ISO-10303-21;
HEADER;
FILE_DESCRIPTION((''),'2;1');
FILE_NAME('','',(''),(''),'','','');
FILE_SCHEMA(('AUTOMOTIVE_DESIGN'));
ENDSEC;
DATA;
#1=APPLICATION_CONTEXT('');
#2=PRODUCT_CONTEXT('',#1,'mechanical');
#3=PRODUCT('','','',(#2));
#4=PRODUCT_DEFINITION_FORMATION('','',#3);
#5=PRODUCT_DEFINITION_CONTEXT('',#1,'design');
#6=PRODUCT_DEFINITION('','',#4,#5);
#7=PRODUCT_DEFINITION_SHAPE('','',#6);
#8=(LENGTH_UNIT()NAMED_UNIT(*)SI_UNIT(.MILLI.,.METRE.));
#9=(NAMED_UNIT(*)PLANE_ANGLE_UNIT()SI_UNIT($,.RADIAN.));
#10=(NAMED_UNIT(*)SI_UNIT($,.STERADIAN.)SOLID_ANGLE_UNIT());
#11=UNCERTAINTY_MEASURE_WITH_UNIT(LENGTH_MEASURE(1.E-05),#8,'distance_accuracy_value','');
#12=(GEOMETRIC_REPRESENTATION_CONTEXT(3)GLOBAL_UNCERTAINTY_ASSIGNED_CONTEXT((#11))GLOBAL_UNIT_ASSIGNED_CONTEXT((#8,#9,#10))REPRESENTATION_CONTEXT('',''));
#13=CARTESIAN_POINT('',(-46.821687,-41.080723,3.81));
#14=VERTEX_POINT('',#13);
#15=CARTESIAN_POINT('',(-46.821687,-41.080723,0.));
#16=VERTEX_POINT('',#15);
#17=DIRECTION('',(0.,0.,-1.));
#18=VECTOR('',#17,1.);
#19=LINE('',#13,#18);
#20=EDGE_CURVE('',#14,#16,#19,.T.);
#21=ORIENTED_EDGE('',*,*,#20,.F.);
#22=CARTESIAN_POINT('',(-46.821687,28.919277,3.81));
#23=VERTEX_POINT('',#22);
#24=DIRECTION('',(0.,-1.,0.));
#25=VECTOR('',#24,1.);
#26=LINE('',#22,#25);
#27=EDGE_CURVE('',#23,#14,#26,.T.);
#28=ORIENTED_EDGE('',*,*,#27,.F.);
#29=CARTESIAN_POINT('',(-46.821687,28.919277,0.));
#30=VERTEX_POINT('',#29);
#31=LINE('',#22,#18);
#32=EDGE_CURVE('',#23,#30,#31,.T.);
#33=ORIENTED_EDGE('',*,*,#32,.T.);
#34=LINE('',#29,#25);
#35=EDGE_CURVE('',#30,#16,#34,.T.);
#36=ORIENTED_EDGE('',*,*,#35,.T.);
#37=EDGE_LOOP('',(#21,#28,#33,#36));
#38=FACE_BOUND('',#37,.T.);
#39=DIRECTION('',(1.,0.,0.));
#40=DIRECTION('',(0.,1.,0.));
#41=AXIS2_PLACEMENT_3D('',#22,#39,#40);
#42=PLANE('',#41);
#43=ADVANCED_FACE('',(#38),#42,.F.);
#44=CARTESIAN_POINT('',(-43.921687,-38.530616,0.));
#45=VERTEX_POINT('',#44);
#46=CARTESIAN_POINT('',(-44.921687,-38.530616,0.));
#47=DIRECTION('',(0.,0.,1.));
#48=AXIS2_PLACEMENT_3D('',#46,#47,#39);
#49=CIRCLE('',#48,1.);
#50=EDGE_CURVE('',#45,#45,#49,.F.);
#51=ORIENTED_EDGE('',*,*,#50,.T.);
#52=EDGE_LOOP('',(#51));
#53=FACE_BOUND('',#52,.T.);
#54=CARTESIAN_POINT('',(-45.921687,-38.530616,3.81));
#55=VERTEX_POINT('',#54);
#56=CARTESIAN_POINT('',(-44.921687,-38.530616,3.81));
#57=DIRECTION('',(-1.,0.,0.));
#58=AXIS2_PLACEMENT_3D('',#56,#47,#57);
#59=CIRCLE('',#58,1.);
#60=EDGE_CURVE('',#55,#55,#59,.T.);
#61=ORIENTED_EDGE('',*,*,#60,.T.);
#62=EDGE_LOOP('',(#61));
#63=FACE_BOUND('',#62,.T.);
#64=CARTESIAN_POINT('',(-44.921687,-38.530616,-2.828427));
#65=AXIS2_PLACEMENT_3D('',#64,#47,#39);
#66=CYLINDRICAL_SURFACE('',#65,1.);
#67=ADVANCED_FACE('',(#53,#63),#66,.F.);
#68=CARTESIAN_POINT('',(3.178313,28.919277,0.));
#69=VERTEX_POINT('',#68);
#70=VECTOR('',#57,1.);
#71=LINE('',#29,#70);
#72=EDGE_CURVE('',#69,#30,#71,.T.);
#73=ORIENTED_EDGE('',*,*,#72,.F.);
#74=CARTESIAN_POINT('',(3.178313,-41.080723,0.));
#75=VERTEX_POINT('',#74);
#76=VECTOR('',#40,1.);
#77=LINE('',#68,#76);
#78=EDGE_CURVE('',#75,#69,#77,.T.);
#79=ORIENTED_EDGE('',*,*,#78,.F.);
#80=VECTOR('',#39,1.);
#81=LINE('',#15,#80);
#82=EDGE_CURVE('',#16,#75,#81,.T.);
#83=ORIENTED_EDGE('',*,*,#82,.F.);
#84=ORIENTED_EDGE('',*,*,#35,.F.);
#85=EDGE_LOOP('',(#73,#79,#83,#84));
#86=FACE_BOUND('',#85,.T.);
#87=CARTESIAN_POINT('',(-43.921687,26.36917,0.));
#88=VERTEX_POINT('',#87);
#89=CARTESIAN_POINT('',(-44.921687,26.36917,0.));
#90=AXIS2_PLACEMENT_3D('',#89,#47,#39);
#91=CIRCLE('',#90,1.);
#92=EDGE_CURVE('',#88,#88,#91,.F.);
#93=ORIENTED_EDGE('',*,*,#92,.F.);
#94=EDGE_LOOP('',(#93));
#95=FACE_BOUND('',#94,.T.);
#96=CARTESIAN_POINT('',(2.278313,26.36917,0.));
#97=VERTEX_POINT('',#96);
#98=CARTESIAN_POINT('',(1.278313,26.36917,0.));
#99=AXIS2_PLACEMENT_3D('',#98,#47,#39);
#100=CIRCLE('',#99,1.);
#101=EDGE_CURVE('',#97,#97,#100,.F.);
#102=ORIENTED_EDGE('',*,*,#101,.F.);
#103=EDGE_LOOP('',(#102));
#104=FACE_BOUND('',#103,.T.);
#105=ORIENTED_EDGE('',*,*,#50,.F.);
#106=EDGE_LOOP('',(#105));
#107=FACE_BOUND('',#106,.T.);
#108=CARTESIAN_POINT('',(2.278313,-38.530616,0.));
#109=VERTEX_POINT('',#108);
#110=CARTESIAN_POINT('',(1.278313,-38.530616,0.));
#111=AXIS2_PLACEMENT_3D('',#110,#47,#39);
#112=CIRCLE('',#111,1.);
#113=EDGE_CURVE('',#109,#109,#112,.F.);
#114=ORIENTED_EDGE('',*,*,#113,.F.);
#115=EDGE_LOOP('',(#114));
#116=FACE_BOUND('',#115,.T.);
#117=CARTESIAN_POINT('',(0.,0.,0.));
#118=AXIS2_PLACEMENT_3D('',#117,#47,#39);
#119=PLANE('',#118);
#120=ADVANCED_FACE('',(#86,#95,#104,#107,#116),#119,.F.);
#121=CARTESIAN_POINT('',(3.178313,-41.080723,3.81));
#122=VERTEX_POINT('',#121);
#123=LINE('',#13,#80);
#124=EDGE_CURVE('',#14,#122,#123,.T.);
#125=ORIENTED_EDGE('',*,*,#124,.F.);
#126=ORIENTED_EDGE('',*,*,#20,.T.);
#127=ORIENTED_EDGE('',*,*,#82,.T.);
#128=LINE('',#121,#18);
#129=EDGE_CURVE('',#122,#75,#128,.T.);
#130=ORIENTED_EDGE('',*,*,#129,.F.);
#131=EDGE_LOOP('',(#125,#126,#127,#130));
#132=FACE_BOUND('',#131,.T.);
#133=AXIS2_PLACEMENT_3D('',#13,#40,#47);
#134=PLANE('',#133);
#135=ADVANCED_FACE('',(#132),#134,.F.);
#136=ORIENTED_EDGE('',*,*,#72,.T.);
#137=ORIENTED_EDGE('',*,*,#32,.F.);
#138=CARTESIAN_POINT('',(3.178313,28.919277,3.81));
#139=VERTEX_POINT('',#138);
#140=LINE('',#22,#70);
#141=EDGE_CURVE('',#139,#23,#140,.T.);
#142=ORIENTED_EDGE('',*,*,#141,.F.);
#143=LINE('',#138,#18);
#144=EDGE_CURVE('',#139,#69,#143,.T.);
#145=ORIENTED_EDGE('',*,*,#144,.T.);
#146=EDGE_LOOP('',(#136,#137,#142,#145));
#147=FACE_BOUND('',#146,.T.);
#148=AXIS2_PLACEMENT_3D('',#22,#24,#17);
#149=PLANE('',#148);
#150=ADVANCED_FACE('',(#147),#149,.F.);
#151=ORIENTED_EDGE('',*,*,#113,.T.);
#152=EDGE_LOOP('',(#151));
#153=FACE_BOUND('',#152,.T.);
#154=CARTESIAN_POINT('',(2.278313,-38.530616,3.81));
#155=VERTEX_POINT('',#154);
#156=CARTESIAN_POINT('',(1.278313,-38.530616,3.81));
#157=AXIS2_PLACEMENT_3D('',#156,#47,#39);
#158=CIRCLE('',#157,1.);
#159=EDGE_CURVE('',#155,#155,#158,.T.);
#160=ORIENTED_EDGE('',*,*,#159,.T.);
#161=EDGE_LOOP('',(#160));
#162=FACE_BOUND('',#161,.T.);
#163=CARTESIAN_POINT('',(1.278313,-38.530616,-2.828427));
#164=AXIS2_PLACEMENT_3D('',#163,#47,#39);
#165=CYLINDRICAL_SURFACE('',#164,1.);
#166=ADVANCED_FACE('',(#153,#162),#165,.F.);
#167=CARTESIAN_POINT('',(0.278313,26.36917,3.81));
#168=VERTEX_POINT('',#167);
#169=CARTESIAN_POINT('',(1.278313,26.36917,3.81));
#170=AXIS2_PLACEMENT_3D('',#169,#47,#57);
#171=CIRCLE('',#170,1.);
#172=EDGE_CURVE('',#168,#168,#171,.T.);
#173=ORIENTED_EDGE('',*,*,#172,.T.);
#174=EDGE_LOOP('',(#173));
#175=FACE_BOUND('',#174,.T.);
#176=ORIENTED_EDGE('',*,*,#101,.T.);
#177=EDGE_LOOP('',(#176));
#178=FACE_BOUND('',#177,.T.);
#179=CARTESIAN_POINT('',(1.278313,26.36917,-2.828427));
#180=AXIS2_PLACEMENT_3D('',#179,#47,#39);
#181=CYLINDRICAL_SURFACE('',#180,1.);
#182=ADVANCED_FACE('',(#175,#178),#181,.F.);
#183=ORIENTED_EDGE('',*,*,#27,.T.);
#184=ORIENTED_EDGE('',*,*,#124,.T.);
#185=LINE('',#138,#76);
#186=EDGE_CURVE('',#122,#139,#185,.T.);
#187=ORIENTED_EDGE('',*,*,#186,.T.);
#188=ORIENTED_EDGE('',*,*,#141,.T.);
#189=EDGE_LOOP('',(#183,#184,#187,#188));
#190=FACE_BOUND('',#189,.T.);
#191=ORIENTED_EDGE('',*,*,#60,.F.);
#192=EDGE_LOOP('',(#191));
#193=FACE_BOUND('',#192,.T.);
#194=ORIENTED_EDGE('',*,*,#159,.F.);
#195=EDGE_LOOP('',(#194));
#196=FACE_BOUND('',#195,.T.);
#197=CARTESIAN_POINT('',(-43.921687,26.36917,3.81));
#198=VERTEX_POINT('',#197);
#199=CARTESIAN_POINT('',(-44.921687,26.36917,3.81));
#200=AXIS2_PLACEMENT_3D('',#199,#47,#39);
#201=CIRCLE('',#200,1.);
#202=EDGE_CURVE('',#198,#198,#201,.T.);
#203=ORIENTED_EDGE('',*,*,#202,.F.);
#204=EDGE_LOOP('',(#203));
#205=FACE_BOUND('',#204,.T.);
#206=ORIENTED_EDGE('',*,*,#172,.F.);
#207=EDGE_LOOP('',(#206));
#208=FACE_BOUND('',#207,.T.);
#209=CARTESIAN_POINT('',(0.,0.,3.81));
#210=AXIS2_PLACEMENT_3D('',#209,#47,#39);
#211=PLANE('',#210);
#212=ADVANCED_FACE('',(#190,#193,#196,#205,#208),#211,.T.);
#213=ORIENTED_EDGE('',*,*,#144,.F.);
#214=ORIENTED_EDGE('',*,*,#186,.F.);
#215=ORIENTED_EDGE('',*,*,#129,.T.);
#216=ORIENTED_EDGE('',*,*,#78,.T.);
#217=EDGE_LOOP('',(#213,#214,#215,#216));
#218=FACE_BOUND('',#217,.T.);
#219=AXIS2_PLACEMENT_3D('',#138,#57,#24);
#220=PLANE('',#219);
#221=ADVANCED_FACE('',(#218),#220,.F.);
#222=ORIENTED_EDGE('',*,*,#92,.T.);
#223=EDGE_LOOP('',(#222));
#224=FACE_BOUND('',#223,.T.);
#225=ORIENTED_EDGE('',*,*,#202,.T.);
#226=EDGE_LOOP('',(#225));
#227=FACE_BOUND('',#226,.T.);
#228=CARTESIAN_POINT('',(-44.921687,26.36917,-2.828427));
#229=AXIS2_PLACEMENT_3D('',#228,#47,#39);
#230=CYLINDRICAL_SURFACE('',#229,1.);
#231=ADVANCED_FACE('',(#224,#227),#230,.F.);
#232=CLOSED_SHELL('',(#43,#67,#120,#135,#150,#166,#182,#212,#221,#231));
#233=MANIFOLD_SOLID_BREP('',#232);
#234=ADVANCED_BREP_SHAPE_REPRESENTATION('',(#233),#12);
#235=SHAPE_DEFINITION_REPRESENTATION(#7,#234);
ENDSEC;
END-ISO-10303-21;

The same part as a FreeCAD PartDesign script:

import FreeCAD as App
import Part
import Sketcher

V = App.Vector

doc = App.newDocument("Part")
body = doc.addObject("PartDesign::Body", "Body")

# Sketch on XY plane
sketch1 = doc.addObject("Sketcher::SketchObject", "Sketch")
body.addObject(sketch1)
sketch1.AttachmentSupport = (doc.XY_Plane, [""])
sketch1.MapMode = "FlatFace"
sketch1.addGeometry([
    Part.LineSegment(V(-47, 29, 0), V(-47, -41, 0)),
    Part.LineSegment(V(-47, -41, 0), V(3, -41, 0)),
    Part.LineSegment(V(3, -41, 0), V(3, 29, 0)),
    Part.LineSegment(V(3, 29, 0), V(-47, 29, 0)),
], False)
sketch1.addConstraint([
    Sketcher.Constraint("Coincident", 0, 2, 1, 1),
    Sketcher.Constraint("Coincident", 1, 2, 2, 1),
    Sketcher.Constraint("Coincident", 2, 2, 3, 1),
    Sketcher.Constraint("Coincident", 3, 2, 0, 1),
    Sketcher.Constraint("Vertical", 0),
    Sketcher.Constraint("Horizontal", 1),
    Sketcher.Constraint("Vertical", 2),
    Sketcher.Constraint("Horizontal", 3),
    Sketcher.Constraint("DistanceX", 1, 1, 1, 2, 50.0),
    Sketcher.Constraint("DistanceY", 0, 2, 0, 1, 70.0),
    Sketcher.Constraint("DistanceX", 0, 2, -1, 1, 46.821687),
    Sketcher.Constraint("DistanceY", 0, 2, -1, 1, 41.080723),
])
pad1 = doc.addObject("PartDesign::Pad", "Pad")
body.addObject(pad1)
pad1.Profile = sketch1
pad1.Length = 3.81

# Sketch on XY plane
sketch2 = doc.addObject("Sketcher::SketchObject", "Sketch001")
body.addObject(sketch2)
sketch2.AttachmentSupport = (doc.XY_Plane, [""])
sketch2.MapMode = "FlatFace"
sketch2.AttachmentOffset = App.Placement(V(0, 0, 3.81), App.Rotation())
sketch2.addGeometry([
    Part.Circle(V(-44.9, 26.4, 0), V(0, 0, 1), 1),
    Part.Circle(V(1.3, 26.4, 0), V(0, 0, 1), 1),
    Part.Circle(V(1.3, -38.5, 0), V(0, 0, 1), 1),
    Part.Circle(V(-44.9, -38.5, 0), V(0, 0, 1), 1),
], False)
sketch2.addConstraint([
    Sketcher.Constraint("Equal", 0, 1),
    Sketcher.Constraint("Equal", 1, 2),
    Sketcher.Constraint("Equal", 2, 3),
    Sketcher.Constraint("Horizontal", 0, 3, 1, 3),
    Sketcher.Constraint("Horizontal", 2, 3, 3, 3),
    Sketcher.Constraint("Vertical", 1, 3, 2, 3),
    Sketcher.Constraint("Vertical", 0, 3, 3, 3),
    Sketcher.Constraint("Diameter", 0, 2.0),
    Sketcher.Constraint("DistanceX", 0, 3, 1, 3, 46.2),
    Sketcher.Constraint("DistanceY", -1, 1, 0, 3, 26.36917),
    Sketcher.Constraint("DistanceX", 0, 3, -1, 1, 44.921687),
    Sketcher.Constraint("DistanceY", 2, 3, -1, 1, 38.530616),
])
pocket1 = doc.addObject("PartDesign::Pocket", "Pocket")
body.addObject(pocket1)
pocket1.Profile = sketch2
pocket1.Length = 3.81

doc.recompute()
